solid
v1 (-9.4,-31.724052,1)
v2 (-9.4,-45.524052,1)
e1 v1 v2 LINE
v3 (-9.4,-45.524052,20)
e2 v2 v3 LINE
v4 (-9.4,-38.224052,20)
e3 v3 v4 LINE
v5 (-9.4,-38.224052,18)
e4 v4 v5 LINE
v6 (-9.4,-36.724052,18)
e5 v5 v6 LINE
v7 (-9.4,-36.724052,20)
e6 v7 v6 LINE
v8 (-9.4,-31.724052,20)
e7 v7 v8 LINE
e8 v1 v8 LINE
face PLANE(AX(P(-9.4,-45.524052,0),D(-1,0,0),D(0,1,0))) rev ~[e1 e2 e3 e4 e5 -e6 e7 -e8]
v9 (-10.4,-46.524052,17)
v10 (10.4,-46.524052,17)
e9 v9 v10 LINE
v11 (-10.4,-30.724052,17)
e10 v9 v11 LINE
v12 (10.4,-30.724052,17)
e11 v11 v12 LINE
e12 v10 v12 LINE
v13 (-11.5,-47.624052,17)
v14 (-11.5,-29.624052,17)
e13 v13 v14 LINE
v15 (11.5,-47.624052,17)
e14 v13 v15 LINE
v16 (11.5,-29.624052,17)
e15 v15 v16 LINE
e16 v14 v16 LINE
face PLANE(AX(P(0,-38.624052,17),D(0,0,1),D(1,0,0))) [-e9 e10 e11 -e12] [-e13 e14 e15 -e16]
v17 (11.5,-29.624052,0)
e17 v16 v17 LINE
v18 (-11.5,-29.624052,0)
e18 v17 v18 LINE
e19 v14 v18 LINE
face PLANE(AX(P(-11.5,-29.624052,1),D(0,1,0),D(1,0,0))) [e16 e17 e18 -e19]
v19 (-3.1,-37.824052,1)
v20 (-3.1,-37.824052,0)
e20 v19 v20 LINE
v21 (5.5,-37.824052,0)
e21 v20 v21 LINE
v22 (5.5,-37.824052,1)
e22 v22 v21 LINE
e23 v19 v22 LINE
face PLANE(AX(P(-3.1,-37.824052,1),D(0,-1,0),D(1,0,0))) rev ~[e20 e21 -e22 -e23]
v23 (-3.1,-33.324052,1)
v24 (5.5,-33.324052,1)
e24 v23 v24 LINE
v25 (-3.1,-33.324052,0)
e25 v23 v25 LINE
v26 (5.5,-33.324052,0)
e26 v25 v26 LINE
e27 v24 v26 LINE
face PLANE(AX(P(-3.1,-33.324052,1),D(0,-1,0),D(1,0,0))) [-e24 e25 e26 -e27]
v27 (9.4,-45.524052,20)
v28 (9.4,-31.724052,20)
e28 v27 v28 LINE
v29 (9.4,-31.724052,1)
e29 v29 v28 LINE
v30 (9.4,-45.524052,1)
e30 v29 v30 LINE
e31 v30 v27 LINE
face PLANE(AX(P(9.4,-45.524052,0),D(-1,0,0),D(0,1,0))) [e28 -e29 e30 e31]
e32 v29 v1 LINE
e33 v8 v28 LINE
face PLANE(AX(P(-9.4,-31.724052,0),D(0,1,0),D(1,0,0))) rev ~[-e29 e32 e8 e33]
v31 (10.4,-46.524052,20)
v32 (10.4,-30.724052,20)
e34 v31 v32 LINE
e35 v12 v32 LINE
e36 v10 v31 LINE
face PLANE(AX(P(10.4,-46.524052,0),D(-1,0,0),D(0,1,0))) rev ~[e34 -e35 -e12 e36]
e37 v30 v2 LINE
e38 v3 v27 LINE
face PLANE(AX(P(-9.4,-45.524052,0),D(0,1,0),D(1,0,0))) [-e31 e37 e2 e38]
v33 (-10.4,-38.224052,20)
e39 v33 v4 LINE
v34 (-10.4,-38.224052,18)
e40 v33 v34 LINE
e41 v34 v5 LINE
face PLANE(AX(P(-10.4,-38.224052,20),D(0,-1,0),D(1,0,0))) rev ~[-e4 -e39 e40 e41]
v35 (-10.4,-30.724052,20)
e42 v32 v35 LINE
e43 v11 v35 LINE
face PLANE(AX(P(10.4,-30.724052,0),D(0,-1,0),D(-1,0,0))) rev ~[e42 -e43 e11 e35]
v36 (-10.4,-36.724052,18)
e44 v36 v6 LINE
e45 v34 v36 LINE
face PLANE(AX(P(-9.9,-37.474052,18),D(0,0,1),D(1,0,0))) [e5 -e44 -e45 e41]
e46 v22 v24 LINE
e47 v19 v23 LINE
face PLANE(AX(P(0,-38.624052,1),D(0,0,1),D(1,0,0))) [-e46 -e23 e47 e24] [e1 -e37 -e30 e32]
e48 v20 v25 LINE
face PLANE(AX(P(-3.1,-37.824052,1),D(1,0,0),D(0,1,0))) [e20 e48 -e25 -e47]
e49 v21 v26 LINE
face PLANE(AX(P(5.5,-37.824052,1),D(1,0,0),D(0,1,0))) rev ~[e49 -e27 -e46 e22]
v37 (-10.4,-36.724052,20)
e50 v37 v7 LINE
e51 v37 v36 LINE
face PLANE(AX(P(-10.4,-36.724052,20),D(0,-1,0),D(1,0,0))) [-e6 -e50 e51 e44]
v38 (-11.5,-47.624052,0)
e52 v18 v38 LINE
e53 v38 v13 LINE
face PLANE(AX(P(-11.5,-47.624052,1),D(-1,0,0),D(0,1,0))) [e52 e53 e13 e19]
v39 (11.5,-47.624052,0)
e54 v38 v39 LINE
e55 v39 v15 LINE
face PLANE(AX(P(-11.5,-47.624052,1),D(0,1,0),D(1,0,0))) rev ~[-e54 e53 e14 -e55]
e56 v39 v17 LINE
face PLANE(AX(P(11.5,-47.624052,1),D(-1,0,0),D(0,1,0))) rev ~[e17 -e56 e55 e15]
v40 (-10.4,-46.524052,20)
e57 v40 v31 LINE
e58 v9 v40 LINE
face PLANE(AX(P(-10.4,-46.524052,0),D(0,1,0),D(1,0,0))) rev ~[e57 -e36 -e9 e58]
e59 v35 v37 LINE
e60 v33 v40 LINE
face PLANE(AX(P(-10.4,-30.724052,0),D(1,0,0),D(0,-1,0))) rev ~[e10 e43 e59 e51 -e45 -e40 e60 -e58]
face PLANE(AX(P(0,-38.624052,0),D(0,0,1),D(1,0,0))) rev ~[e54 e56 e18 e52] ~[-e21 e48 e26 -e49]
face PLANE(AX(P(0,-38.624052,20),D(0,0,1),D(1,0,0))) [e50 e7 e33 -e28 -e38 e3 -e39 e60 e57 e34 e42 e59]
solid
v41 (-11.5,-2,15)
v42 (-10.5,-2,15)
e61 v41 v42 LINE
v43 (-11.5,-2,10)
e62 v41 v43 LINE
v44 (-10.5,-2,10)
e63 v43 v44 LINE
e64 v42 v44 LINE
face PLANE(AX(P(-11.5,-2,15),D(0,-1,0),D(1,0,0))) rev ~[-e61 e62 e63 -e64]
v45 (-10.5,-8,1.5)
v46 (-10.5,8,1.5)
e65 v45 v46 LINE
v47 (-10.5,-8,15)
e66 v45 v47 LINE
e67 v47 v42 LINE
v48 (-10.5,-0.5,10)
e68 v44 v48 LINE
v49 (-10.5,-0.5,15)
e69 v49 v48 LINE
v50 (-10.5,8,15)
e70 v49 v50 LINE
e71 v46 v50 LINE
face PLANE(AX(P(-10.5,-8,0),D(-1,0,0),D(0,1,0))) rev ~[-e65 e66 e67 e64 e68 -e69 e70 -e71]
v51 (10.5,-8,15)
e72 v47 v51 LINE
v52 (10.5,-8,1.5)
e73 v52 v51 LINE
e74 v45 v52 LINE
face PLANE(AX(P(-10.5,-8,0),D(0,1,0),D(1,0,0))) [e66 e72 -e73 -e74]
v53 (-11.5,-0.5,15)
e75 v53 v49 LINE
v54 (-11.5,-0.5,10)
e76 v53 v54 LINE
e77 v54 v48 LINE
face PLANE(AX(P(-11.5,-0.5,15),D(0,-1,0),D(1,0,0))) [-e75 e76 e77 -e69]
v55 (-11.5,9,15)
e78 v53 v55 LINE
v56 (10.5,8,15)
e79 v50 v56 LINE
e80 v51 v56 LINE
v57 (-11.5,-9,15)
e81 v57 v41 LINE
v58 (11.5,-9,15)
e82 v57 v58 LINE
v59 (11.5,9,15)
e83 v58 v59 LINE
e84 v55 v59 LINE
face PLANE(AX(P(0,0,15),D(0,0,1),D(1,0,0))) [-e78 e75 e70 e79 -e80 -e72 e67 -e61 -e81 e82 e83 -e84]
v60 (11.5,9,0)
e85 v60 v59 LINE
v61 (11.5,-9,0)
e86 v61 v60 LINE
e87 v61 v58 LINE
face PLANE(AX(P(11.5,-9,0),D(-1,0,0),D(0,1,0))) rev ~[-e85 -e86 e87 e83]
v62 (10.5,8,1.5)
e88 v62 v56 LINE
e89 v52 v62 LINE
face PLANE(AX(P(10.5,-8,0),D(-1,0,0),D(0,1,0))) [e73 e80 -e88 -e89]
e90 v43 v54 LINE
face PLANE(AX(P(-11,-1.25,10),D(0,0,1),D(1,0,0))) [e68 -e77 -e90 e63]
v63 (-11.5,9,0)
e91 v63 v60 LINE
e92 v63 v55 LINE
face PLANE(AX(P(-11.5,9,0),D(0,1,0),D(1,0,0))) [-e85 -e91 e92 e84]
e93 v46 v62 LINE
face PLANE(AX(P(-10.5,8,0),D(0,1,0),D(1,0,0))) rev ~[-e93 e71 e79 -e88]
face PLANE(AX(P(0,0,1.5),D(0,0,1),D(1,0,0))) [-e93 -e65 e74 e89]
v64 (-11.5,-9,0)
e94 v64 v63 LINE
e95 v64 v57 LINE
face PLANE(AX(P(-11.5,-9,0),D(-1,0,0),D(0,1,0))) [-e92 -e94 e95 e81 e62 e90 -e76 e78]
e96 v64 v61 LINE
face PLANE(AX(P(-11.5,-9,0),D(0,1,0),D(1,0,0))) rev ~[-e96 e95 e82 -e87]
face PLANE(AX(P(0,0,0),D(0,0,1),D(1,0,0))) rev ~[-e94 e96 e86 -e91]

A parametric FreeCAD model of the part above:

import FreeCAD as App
import Part
import Sketcher

V = App.Vector
Q = App.Units.Quantity


def add_polygon(sketch, points):
    """Adds a closed chain of lines whose ends are joined by coincident constraints."""
    first, n = sketch.GeometryCount, len(points)
    for a, b in zip(points, points[1:] + points[:1]):
        sketch.addGeometry(Part.LineSegment(App.Vector(*a, 0), App.Vector(*b, 0)), False)
    for i in range(n):
        sketch.addConstraint(Sketcher.Constraint("Coincident", first + i, 2, first + (i + 1) % n, 1))

doc = App.newDocument("Part")
body = doc.addObject("PartDesign::Body", "Body")

sketch1 = doc.addObject("Sketcher::SketchObject", "Sketch")
body.addObject(sketch1)
sketch1.AttachmentSupport = (doc.XY_Plane, [""])
sketch1.MapMode = "FlatFace"
add_polygon(sketch1, [(-10, 8), (-10, -8), (10, -8), (10, 8)])
sketch1.addConstraint(Sketcher.Constraint("Vertical", 0))
sketch1.addConstraint(Sketcher.Constraint("Horizontal", 1))
sketch1.addConstraint(Sketcher.Constraint("Vertical", 2))
sketch1.addConstraint(Sketcher.Constraint("Horizontal", 3))
sketch1.addConstraint(Sketcher.Constraint("Symmetric", 0, 2, 2, 2, -1, 1))
sketch1.addConstraint(Sketcher.Constraint("DistanceX", 1, 1, 1, 2, Q("21 mm")))
sketch1.addConstraint(Sketcher.Constraint("DistanceY", 0, 2, 0, 1, Q("16 mm")))
pad1 = doc.addObject("PartDesign::Pad", "Pad")
body.addObject(pad1)
pad1.Profile = sketch1
pad1.Length = 1.5

sketch2 = doc.addObject("Sketcher::SketchObject", "Sketch001")
body.addObject(sketch2)
sketch2.AttachmentSupport = (doc.XY_Plane, [""])
sketch2.MapMode = "FlatFace"
add_polygon(sketch2, [(-12, 9), (-12, -9), (12, -9), (12, 9)])
add_polygon(sketch2, [(10, -8), (-10, -8), (-10, 8), (10, 8)])
sketch2.addConstraint(Sketcher.Constraint("Vertical", 0))
sketch2.addConstraint(Sketcher.Constraint("Horizontal", 1))
sketch2.addConstraint(Sketcher.Constraint("Vertical", 2))
sketch2.addConstraint(Sketcher.Constraint("Horizontal", 3))
sketch2.addConstraint(Sketcher.Constraint("Horizontal", 4))
sketch2.addConstraint(Sketcher.Constraint("Vertical", 5))
sketch2.addConstraint(Sketcher.Constraint("Horizontal", 6))
sketch2.addConstraint(Sketcher.Constraint("Vertical", 7))
sketch2.addConstraint(Sketcher.Constraint("Symmetric", 0, 2, 2, 2, -1, 1))
sketch2.addConstraint(Sketcher.Constraint("Symmetric", 4, 2, 6, 2, -1, 1))
sketch2.addConstraint(Sketcher.Constraint("DistanceX", 1, 1, 1, 2, Q("23 mm")))
sketch2.addConstraint(Sketcher.Constraint("DistanceX", 4, 2, 4, 1, Q("21 mm")))
sketch2.addConstraint(Sketcher.Constraint("DistanceY", 0, 2, 0, 1, Q("18 mm")))
sketch2.addConstraint(Sketcher.Constraint("DistanceY", 5, 1, 5, 2, Q("16 mm")))
pad2 = doc.addObject("PartDesign::Pad", "Pad001")
body.addObject(pad2)
pad2.Profile = sketch2
pad2.Length = 15

sketch3 = doc.addObject("Sketcher::SketchObject", "Sketch002")
body.addObject(sketch3)
sketch3.AttachmentSupport = (doc.XY_Plane, [""])
sketch3.MapMode = "FlatFace"
sketch3.AttachmentOffset = App.Placement(V(0, 0, 15), App.Rotation())
add_polygon(sketch3, [(-11.5, -0.5), (-11.5, -2), (-10.5, -2), (-10.5, -0.5)])
sketch3.addConstraint(Sketcher.Constraint("Vertical", 0))
sketch3.addConstraint(Sketcher.Constraint("Horizontal", 1))
sketch3.addConstraint(Sketcher.Constraint("Vertical", 2))
sketch3.addConstraint(Sketcher.Constraint("Horizontal", 3))
sketch3.addConstraint(Sketcher.Constraint("DistanceX", 1, 1, 1, 2, Q("1 mm")))
sketch3.addConstraint(Sketcher.Constraint("DistanceY", 0, 2, 0, 1, Q("1.5 mm")))
sketch3.addConstraint(Sketcher.Constraint("DistanceY", 0, 2, -1, 1, Q("2 mm")))
sketch3.addConstraint(Sketcher.Constraint("DistanceX", 0, 2, -1, 1, Q("11.5 mm")))
pocket1 = doc.addObject("PartDesign::Pocket", "Pocket")
body.addObject(pocket1)
pocket1.Profile = sketch3
pocket1.Length = 5
body2 = doc.addObject("PartDesign::Body", "Body001")

sketch4 = doc.addObject("Sketcher::SketchObject", "Sketch003")
body2.addObject(sketch4)
sketch4.AttachmentSupport = (doc.getObject("XY_Plane001"), [""])
sketch4.MapMode = "FlatFace"
add_polygon(sketch4, [(-12, -48), (12, -48), (12, -30), (-12, -30)])
sketch4.addConstraint(Sketcher.Constraint("Horizontal", 0))
sketch4.addConstraint(Sketcher.Constraint("Vertical", 1))
sketch4.addConstraint(Sketcher.Constraint("Horizontal", 2))
sketch4.addConstraint(Sketcher.Constraint("Vertical", 3))
sketch4.addConstraint(Sketcher.Constraint("DistanceX", 0, 1, 0, 2, Q("23 mm")))
sketch4.addConstraint(Sketcher.Constraint("DistanceY", 1, 1, 1, 2, Q("18 mm")))
sketch4.addConstraint(Sketcher.Constraint("DistanceX", -1, 1, 0, 2, Q("11.5 mm")))
sketch4.addConstraint(Sketcher.Constraint("DistanceY", 1, 2, -1, 1, Q("29.624052 mm")))
pad3 = doc.addObject("PartDesign::Pad", "Pad002")
body2.addObject(pad3)
pad3.Profile = sketch4
pad3.Length = 1

sketch5 = doc.addObject("Sketcher::SketchObject", "Sketch004")
body2.addObject(sketch5)
sketch5.AttachmentSupport = (doc.getObject("XY_Plane001"), [""])
sketch5.MapMode = "FlatFace"
add_polygon(sketch5, [(-10, -47), (10, -47), (10, -31), (-10, -31)])
add_polygon(sketch5, [(9, -46), (-9, -46), (-9, -32), (9, -32)])
sketch5.addConstraint(Sketcher.Constraint("Horizontal", 0))
sketch5.addConstraint(Sketcher.Constraint("Vertical", 1))
sketch5.addConstraint(Sketcher.Constraint("Horizontal", 2))
sketch5.addConstraint(Sketcher.Constraint("Vertical", 3))
sketch5.addConstraint(Sketcher.Constraint("Horizontal", 4))
sketch5.addConstraint(Sketcher.Constraint("Vertical", 5))
sketch5.addConstraint(Sketcher.Constraint("Horizontal", 6))
sketch5.addConstraint(Sketcher.Constraint("Vertical", 7))
sketch5.addConstraint(Sketcher.Constraint("DistanceX", 0, 1, 0, 2, Q("20.8 mm")))
sketch5.addConstraint(Sketcher.Constraint("DistanceX", 4, 2, 4, 1, Q("18.8 mm")))
sketch5.addConstraint(Sketcher.Constraint("DistanceY", 1, 1, 1, 2, Q("15.8 mm")))
sketch5.addConstraint(Sketcher.Constraint("DistanceY", 5, 1, 5, 2, Q("13.8 mm")))
sketch5.addConstraint(Sketcher.Constraint("DistanceX", 3, 2, 4, 2, Q("1 mm")))
sketch5.addConstraint(Sketcher.Constraint("DistanceY", 3, 2, 4, 2, Q("1 mm")))
sketch5.addConstraint(Sketcher.Constraint("DistanceX", -1, 1, 0, 2, Q("10.4 mm")))
sketch5.addConstraint(Sketcher.Constraint("DistanceY", 0, 2, -1, 1, Q("46.524052 mm")))
pad4 = doc.addObject("PartDesign::Pad", "Pad003")
body2.addObject(pad4)
pad4.Profile = sketch5
pad4.Length = 20

sketch6 = doc.addObject("Sketcher::SketchObject", "Sketch005")
body2.addObject(sketch6)
sketch6.AttachmentSupport = (doc.getObject("XY_Plane001"), [""])
sketch6.MapMode = "FlatFace"
sketch6.AttachmentOffset = App.Placement(V(0, 0, 1), App.Rotation())
add_polygon(sketch6, [(-3.1, -33.3), (-3.1, -37.8), (5.5, -37.8), (5.5, -33.3)])
sketch6.addConstraint(Sketcher.Constraint("Vertical", 0))
sketch6.addConstraint(Sketcher.Constraint("Horizontal", 1))
sketch6.addConstraint(Sketcher.Constraint("Vertical", 2))
sketch6.addConstraint(Sketcher.Constraint("Horizontal", 3))
sketch6.addConstraint(Sketcher.Constraint("DistanceX", 1, 1, 1, 2, Q("8.6 mm")))
sketch6.addConstraint(Sketcher.Constraint("DistanceY", 0, 2, 0, 1, Q("4.5 mm")))
sketch6.addConstraint(Sketcher.Constraint("DistanceX", 0, 2, -1, 1, Q("3.1 mm")))
sketch6.addConstraint(Sketcher.Constraint("DistanceY", 0, 2, -1, 1, Q("37.824052 mm")))
pocket2 = doc.addObject("PartDesign::Pocket", "Pocket001")
body2.addObject(pocket2)
pocket2.Profile = sketch6
pocket2.Length = 4

sketch7 = doc.addObject("Sketcher::SketchObject", "Sketch006")
body2.addObject(sketch7)
sketch7.AttachmentSupport = (doc.getObject("XY_Plane001"), [""])
sketch7.MapMode = "FlatFace"
sketch7.AttachmentOffset = App.Placement(V(0, 0, 1), App.Rotation())
add_polygon(sketch7, [(-12, -30), (-12, -48), (12, -48), (12, -30)])
add_polygon(sketch7, [(10, -47), (-10, -47), (-10, -31), (10, -31)])
sketch7.addConstraint(Sketcher.Constraint("Vertical", 0))
sketch7.addConstraint(Sketcher.Constraint("Horizontal", 1))
sketch7.addConstraint(Sketcher.Constraint("Vertical", 2))
sketch7.addConstraint(Sketcher.Constraint("Horizontal", 3))
sketch7.addConstraint(Sketcher.Constraint("Horizontal", 4))
sketch7.addConstraint(Sketcher.Constraint("Vertical", 5))
sketch7.addConstraint(Sketcher.Constraint("Horizontal", 6))
sketch7.addConstraint(Sketcher.Constraint("Vertical", 7))
sketch7.addConstraint(Sketcher.Constraint("DistanceX", 1, 1, 1, 2, Q("23 mm")))
sketch7.addConstraint(Sketcher.Constraint("DistanceY", 0, 2, 0, 1, Q("18 mm")))
sketch7.addConstraint(Sketcher.Constraint("DistanceX", 4, 2, 4, 1, Q("20.8 mm")))
sketch7.addConstraint(Sketcher.Constraint("DistanceY", 5, 1, 5, 2, Q("15.8 mm")))
sketch7.addConstraint(Sketcher.Constraint("DistanceX", 0, 2, -1, 1, Q("11.5 mm")))
sketch7.addConstraint(Sketcher.Constraint("DistanceX", 4, 2, -1, 1, Q("10.4 mm")))
sketch7.addConstraint(Sketcher.Constraint("DistanceY", 0, 2, 4, 2, Q("1.1 mm")))
sketch7.addConstraint(Sketcher.Constraint("DistanceY", 2, 2, -1, 1, Q("29.624052 mm")))
pad5 = doc.addObject("PartDesign::Pad", "Pad004")
body2.addObject(pad5)
pad5.Profile = sketch7
pad5.Length = 16

sketch8 = doc.addObject("Sketcher::SketchObject", "Sketch007")
body2.addObject(sketch8)
sketch8.AttachmentSupport = (doc.getObject("XY_Plane001"), [""])
sketch8.MapMode = "FlatFace"
sketch8.AttachmentOffset = App.Placement(V(0, 0, 20), App.Rotation())
add_polygon(sketch8, [(-10.4, -36.7), (-10.4, -38.2), (-9.4, -38.2), (-9.4, -36.7)])
sketch8.addConstraint(Sketcher.Constraint("Vertical", 0))
sketch8.addConstraint(Sketcher.Constraint("Horizontal", 1))
sketch8.addConstraint(Sketcher.Constraint("Vertical", 2))
sketch8.addConstraint(Sketcher.Constraint("Horizontal", 3))
sketch8.addConstraint(Sketcher.Constraint("DistanceX", 1, 1, 1, 2, Q("1 mm")))
sketch8.addConstraint(Sketcher.Constraint("DistanceY", 0, 2, 0, 1, Q("1.5 mm")))
sketch8.addConstraint(Sketcher.Constraint("DistanceX", 0, 2, -1, 1, Q("10.4 mm")))
sketch8.addConstraint(Sketcher.Constraint("DistanceY", 0, 2, -1, 1, Q("38.224052 mm")))
pocket3 = doc.addObject("PartDesign::Pocket", "Pocket002")
body2.addObject(pocket3)
pocket3.Profile = sketch8
pocket3.Length = 2

doc.recompute()
